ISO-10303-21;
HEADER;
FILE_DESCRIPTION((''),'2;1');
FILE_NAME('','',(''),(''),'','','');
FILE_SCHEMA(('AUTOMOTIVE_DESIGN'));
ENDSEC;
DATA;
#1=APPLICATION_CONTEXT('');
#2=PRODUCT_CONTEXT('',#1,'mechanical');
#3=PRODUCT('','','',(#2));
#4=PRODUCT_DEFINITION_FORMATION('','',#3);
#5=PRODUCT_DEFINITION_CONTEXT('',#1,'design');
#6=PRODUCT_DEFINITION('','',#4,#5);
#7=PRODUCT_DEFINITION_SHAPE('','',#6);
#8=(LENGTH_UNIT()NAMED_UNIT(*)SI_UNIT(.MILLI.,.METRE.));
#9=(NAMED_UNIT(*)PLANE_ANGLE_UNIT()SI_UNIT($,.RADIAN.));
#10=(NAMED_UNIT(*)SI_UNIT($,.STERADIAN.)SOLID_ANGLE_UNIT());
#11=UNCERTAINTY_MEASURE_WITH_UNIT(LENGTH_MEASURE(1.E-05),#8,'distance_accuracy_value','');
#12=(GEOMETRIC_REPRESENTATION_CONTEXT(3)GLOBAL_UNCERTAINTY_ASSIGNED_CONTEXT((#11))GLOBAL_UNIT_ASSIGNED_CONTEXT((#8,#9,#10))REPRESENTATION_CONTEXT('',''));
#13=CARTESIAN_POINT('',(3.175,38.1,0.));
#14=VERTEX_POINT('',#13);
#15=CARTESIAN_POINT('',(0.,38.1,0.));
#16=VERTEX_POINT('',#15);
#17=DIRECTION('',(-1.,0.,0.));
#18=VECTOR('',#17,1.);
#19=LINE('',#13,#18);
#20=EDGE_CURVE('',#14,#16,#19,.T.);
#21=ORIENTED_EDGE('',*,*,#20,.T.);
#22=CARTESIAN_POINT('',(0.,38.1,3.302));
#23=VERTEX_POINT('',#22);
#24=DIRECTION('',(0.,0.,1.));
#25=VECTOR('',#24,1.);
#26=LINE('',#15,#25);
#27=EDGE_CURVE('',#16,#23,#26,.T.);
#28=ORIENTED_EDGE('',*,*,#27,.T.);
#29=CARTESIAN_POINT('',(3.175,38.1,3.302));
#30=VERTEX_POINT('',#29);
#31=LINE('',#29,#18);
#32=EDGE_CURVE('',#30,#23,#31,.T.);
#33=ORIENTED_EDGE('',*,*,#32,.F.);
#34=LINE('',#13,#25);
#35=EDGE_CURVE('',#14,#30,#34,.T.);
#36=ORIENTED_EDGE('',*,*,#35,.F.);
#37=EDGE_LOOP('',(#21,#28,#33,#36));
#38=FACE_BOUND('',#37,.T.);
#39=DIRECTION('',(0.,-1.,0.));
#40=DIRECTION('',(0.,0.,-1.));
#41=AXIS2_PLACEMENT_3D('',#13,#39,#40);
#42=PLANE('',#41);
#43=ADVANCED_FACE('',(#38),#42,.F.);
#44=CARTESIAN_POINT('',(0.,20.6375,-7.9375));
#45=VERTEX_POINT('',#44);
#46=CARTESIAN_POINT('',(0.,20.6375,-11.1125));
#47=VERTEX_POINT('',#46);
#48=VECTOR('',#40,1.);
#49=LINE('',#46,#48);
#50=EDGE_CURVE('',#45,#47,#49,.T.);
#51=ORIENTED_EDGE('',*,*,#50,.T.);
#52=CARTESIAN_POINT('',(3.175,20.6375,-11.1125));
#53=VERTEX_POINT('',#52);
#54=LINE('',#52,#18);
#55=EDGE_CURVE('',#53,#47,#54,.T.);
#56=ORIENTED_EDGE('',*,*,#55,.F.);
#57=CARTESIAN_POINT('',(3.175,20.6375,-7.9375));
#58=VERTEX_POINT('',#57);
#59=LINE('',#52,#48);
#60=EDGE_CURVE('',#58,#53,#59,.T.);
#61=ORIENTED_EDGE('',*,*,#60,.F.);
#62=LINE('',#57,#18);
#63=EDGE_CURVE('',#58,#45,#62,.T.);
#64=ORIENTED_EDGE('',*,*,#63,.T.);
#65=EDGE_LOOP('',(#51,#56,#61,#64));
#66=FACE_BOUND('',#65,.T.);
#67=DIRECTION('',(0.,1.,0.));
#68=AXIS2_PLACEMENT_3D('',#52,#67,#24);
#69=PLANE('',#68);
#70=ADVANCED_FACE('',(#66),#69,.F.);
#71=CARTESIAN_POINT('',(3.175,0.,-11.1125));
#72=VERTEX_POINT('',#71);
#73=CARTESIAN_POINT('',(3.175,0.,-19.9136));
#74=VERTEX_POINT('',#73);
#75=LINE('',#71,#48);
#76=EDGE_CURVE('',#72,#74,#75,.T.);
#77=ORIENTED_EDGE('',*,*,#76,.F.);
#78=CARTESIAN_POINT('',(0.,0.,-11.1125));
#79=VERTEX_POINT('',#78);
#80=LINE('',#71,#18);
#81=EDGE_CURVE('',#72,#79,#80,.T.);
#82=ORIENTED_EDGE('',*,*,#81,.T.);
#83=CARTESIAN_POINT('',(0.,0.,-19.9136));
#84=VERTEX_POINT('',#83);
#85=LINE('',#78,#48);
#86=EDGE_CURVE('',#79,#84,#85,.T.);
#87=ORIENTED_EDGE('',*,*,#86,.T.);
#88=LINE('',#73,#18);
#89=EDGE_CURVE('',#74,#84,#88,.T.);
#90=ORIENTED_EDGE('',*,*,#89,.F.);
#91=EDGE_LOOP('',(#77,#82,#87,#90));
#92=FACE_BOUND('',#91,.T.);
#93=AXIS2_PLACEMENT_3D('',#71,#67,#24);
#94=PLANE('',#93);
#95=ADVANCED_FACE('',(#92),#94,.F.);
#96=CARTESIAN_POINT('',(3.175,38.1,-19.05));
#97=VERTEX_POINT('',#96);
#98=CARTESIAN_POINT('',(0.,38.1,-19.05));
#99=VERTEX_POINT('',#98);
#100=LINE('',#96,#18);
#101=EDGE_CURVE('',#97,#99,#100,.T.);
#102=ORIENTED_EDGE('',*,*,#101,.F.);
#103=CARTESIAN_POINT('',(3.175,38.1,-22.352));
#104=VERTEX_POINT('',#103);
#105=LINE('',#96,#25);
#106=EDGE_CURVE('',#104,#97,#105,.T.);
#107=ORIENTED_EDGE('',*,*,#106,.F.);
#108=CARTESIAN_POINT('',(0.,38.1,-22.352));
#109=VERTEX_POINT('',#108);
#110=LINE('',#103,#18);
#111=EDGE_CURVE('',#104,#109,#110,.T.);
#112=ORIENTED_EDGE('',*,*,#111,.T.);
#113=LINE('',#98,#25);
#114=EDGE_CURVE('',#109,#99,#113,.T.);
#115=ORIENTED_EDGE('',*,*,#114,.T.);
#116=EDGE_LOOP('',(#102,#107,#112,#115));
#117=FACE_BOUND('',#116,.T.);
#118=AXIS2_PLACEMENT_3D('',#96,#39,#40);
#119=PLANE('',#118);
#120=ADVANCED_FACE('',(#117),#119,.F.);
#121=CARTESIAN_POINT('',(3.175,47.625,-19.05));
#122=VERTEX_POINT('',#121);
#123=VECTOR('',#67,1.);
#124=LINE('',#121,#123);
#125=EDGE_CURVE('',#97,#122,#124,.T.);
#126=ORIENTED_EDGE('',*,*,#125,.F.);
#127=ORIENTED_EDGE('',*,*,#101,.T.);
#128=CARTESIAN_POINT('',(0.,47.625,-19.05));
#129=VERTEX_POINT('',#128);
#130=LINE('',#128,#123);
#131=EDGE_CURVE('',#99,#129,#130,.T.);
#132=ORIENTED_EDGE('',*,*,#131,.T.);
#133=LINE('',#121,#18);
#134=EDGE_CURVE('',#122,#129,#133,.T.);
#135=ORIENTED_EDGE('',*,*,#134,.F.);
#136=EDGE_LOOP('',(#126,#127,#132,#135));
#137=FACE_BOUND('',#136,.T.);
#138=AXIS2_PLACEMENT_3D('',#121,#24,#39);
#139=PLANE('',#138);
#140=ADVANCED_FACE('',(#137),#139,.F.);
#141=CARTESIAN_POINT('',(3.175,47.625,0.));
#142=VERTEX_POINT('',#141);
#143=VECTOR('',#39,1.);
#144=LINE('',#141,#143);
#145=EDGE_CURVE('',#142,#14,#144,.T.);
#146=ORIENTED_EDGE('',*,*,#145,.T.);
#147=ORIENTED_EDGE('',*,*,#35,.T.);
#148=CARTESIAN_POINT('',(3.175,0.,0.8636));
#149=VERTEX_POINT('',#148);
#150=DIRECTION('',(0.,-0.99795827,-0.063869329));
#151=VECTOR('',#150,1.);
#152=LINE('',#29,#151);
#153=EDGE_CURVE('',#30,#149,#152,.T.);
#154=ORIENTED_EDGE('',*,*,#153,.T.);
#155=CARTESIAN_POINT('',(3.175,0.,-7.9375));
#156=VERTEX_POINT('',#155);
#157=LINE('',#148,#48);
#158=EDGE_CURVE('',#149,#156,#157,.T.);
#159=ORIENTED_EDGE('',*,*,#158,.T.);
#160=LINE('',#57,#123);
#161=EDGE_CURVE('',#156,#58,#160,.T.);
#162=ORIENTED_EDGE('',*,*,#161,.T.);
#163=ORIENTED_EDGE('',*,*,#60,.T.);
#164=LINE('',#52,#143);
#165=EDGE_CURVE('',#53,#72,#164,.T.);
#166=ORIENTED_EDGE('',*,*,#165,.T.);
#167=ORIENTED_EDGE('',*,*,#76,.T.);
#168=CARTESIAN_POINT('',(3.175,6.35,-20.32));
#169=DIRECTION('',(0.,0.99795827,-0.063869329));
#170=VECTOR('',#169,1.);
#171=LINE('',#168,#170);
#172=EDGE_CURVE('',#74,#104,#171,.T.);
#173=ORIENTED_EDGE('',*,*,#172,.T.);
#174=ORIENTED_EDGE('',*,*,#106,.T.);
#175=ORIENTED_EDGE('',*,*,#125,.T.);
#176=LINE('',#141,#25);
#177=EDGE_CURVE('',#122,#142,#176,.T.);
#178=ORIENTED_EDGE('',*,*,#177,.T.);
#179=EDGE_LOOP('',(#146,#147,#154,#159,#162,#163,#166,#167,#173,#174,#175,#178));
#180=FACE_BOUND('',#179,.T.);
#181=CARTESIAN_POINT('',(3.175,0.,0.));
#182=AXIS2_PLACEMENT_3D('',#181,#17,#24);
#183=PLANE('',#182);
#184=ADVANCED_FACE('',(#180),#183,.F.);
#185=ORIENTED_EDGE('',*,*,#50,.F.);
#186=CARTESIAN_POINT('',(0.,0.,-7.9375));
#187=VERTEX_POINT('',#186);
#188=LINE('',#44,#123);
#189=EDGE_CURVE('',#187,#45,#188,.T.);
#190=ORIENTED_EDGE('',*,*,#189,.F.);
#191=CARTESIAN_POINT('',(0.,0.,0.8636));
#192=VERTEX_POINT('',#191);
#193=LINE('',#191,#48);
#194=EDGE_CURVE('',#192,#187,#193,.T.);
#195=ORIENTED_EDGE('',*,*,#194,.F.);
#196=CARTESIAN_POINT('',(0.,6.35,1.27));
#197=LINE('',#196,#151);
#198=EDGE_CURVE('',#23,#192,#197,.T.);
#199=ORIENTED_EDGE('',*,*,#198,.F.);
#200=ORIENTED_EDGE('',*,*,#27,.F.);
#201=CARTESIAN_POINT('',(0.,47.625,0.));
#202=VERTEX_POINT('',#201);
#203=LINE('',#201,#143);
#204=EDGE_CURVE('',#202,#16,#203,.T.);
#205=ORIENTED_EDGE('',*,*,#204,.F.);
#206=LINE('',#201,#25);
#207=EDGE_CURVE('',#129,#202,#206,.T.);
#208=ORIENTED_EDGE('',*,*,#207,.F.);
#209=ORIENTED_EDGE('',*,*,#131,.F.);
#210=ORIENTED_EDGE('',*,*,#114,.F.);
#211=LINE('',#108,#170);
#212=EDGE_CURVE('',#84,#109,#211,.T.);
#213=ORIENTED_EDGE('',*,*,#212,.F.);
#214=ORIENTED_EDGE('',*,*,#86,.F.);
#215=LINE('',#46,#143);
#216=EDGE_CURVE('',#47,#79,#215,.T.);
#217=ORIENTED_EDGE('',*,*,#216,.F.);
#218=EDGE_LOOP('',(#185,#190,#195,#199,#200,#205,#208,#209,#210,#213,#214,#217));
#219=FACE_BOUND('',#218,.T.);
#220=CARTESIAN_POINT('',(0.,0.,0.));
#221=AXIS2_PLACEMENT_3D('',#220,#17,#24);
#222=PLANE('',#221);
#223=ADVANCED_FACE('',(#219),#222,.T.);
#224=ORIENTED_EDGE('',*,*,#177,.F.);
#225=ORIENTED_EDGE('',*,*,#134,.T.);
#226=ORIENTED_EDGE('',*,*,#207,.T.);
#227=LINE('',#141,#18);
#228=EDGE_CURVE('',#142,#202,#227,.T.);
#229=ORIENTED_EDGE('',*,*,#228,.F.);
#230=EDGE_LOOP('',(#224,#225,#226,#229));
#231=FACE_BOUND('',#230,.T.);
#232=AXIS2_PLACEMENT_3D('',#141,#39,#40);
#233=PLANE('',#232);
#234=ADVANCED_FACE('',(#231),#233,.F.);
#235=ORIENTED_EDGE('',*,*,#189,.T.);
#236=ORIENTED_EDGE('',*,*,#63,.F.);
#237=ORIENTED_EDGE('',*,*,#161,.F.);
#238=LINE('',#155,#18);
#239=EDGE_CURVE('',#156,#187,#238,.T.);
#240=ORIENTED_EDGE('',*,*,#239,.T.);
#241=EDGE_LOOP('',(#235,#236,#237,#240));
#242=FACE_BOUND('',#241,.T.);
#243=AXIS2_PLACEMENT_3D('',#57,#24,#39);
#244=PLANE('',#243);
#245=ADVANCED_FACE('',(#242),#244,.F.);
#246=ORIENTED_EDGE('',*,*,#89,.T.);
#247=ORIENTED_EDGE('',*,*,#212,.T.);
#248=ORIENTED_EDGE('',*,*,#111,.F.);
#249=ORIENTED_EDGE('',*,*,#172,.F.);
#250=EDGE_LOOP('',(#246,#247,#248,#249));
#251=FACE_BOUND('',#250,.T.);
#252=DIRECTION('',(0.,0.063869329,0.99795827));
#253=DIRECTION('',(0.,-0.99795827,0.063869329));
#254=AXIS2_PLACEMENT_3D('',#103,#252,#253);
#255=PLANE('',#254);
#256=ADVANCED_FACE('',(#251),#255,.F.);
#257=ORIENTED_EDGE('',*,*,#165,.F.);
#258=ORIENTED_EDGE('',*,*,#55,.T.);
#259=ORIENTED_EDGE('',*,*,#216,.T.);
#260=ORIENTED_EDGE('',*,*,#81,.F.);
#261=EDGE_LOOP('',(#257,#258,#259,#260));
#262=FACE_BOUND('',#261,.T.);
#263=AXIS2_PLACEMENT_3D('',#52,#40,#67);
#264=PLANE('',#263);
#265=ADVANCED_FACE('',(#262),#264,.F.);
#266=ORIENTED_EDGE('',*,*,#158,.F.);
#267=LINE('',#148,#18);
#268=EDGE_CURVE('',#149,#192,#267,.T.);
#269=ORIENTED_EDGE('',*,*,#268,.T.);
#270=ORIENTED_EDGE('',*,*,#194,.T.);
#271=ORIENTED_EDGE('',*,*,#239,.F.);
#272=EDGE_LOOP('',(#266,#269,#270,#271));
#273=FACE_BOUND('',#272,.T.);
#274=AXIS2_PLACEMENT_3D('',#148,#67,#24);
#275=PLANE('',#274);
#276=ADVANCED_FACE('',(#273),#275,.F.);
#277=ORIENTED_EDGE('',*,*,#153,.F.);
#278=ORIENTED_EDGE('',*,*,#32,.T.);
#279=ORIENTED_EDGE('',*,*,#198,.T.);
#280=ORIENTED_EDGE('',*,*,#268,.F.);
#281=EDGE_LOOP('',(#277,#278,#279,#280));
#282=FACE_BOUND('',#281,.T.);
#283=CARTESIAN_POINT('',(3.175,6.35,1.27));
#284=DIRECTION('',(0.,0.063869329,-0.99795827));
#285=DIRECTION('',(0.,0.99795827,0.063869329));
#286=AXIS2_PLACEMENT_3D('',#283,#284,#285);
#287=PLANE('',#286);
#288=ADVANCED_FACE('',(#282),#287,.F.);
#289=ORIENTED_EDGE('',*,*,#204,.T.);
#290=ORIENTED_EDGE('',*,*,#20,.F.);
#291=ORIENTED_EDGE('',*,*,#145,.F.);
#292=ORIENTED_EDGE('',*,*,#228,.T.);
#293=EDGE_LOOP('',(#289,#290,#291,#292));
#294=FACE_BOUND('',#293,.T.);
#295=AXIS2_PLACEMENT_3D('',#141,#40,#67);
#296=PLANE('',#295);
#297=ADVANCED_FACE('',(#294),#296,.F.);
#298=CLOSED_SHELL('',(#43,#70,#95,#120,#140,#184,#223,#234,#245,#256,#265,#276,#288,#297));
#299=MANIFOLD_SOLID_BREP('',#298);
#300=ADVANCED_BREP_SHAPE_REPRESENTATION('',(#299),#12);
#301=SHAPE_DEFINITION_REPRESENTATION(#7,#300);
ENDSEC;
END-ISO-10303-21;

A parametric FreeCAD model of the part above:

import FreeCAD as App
import Part
import Sketcher

V = App.Vector
Q = App.Units.Quantity

doc = App.newDocument("Part")
params = doc.addObject("Spreadsheet::Sheet", "Params")
for row, (alias, value) in enumerate([
    ("sketch1_height", "0.75 in"),
    ("sketch1_height2", "0.13 in"),
    ("sketch1_width", "0.375 in"),
    ("sketch1_width2", "0.8125 in"),
    ("sketch1_height3", "0.125 in"),
    ("pad1_length", "0.125 in"),
], start=1):
    params.set(f"A{row}", alias)
    params.set(f"B{row}", "=" + value)
    params.setAlias(f"B{row}", alias)

body = doc.addObject("PartDesign::Body", "Body")

# Sketch on YZ plane
sketch1 = doc.addObject("Sketcher::SketchObject", "Sketch")
body.addObject(sketch1)
sketch1.AttachmentSupport = (doc.YZ_Plane, [""])
sketch1.MapMode = "FlatFace"
sketch1.addGeometry(Part.LineSegment(V(47.6, -19.1, 0), V(47.6, 0, 0)), False)
sketch1.addGeometry(Part.LineSegment(V(47.6, 0, 0), V(38.1, 0, 0)), False)
sketch1.addGeometry(Part.LineSegment(V(38.1, 0, 0), V(38.1, 3.3, 0)), False)
sketch1.addGeometry(Part.LineSegment(V(38.1, 3.3, 0), V(0, 0.9, 0)), False)
sketch1.addGeometry(Part.LineSegment(V(0, 0.9, 0), V(0, -7.9, 0)), False)
sketch1.addGeometry(Part.LineSegment(V(0, -7.9, 0), V(20.6, -7.9, 0)), False)
sketch1.addGeometry(Part.LineSegment(V(20.6, -7.9, 0), V(20.6, -11.1, 0)), False)
sketch1.addGeometry(Part.LineSegment(V(20.6, -11.1, 0), V(0, -11.1, 0)), False)
sketch1.addGeometry(Part.LineSegment(V(0, -11.1, 0), V(0, -19.9, 0)), False)
sketch1.addGeometry(Part.LineSegment(V(0, -19.9, 0), V(38.1, -22.4, 0)), False)
sketch1.addGeometry(Part.LineSegment(V(38.1, -22.4, 0), V(38.1, -19.1, 0)), False)
sketch1.addGeometry(Part.LineSegment(V(38.1, -19.1, 0), V(47.6, -19.1, 0)), False)
sketch1.addConstraint(Sketcher.Constraint("Coincident", 0, 2, 1, 1))
sketch1.addConstraint(Sketcher.Constraint("Coincident", 1, 2, 2, 1))
sketch1.addConstraint(Sketcher.Constraint("Coincident", 2, 2, 3, 1))
sketch1.addConstraint(Sketcher.Constraint("Coincident", 3, 2, 4, 1))
sketch1.addConstraint(Sketcher.Constraint("Coincident", 4, 2, 5, 1))
sketch1.addConstraint(Sketcher.Constraint("Coincident", 5, 2, 6, 1))
sketch1.addConstraint(Sketcher.Constraint("Coincident", 6, 2, 7, 1))
sketch1.addConstraint(Sketcher.Constraint("Coincident", 7, 2, 8, 1))
sketch1.addConstraint(Sketcher.Constraint("Coincident", 8, 2, 9, 1))
sketch1.addConstraint(Sketcher.Constraint("Coincident", 9, 2, 10, 1))
sketch1.addConstraint(Sketcher.Constraint("Coincident", 10, 2, 11, 1))
sketch1.addConstraint(Sketcher.Constraint("Coincident", 11, 2, 0, 1))
sketch1.addConstraint(Sketcher.Constraint("Vertical", 0))
sketch1.addConstraint(Sketcher.Constraint("Horizontal", 1))
sketch1.addConstraint(Sketcher.Constraint("Vertical", 2))
sketch1.addConstraint(Sketcher.Constraint("Vertical", 4))
sketch1.addConstraint(Sketcher.Constraint("Horizontal", 5))
sketch1.addConstraint(Sketcher.Constraint("Vertical", 6))
sketch1.addConstraint(Sketcher.Constraint("Horizontal", 7))
sketch1.addConstraint(Sketcher.Constraint("Vertical", 8))
sketch1.addConstraint(Sketcher.Constraint("Vertical", 10))
sketch1.addConstraint(Sketcher.Constraint("Horizontal", 11))
sketch1.addConstraint(Sketcher.Constraint("PointOnObject", 0, 2, -1))
sketch1.addConstraint(Sketcher.Constraint("PointOnObject", 3, 2, -2))
sketch1.addConstraint(Sketcher.Constraint("PointOnObject", 7, 2, -2))
sketch1.addConstraint(Sketcher.Constraint("Vertical", 2, 2, 9, 2))
sketch1.addConstraint(Sketcher.Constraint("Equal", 4, 8))
sketch1.addConstraint(Sketcher.Constraint("Equal", 2, 10))
sketch1.addConstraint(Sketcher.Constraint("Equal", 3, 9))
sketch1.addConstraint(Sketcher.Constraint("DistanceY", 0, 1, 0, 2, Q("0.75 in")))
sketch1.addConstraint(Sketcher.Constraint("DistanceY", 2, 1, 2, 2, Q("0.13 in")))
sketch1.addConstraint(Sketcher.Constraint("DistanceX", -1, 1, 1, 2, Q("1.5 in")))
sketch1.addConstraint(Sketcher.Constraint("DistanceX", 1, 2, 1, 1, Q("0.375 in")))
sketch1.addConstraint(Sketcher.Constraint("DistanceX", 5, 1, 5, 2, Q("0.8125 in")))
sketch1.addConstraint(Sketcher.Constraint("DistanceY", 6, 2, 6, 1, Q("0.125 in")))
sketch1.addConstraint(Sketcher.Constraint("DistanceY", 4, 2, 4, 1, Q("0.3465 in")))
sketch1.setExpression("Constraints[29]", "Params.sketch1_height")
sketch1.setExpression("Constraints[30]", "Params.sketch1_height2")
sketch1.setExpression("Constraints[32]", "Params.sketch1_width")
sketch1.setExpression("Constraints[33]", "Params.sketch1_width2")
sketch1.setExpression("Constraints[34]", "Params.sketch1_height3")
pad1 = doc.addObject("PartDesign::Pad", "Pad")
body.addObject(pad1)
pad1.Profile = sketch1
pad1.setExpression("Length", "Params.pad1_length")

doc.recompute()
